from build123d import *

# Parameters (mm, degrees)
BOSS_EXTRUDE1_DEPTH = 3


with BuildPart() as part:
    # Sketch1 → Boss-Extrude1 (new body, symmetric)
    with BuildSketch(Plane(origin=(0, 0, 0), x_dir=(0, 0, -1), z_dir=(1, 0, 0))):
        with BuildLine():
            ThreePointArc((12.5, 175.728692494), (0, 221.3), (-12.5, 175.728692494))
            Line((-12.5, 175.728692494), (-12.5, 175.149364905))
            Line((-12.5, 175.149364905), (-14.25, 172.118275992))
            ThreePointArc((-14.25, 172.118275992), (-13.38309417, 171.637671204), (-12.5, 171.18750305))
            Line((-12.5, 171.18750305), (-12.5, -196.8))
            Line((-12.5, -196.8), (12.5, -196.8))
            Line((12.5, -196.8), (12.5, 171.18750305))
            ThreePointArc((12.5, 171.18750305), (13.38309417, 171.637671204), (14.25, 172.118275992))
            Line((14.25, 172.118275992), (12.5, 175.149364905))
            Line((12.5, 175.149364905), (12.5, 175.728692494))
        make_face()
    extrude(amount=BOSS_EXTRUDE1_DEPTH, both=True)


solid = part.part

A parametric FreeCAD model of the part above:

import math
import FreeCAD as App
import Part
import Sketcher
from FreeCAD import Vector
Q = App.Units.Quantity

doc = App.newDocument("Part")
params = doc.addObject("Spreadsheet::Sheet", "Params")
for row, (alias, value) in enumerate([
    ("sketch1_radius", "24.5 mm"),
    ("sketch1_radius2", "28.5 mm"),
    ("sketch1_height", "25 mm"),
    ("sketch1_length", "3.5 mm"),
    ("pad1_length", "6 mm"),
], start=1):
    params.set(f"A{row}", alias)
    params.set(f"B{row}", "=" + value)
    params.setAlias(f"B{row}", alias)

body = doc.addObject("PartDesign::Body", "Body")

sketch1 = doc.addObject("Sketcher::SketchObject", "Sketch")
body.addObject(sketch1)
sketch1.AttachmentSupport = (doc.YZ_Plane, [""])
sketch1.MapMode = "FlatFace"
sketch1.addGeometry([
    Part.ArcOfCircle(Part.Circle(Vector(196.8, 0, 0), Vector(0, 0, 1), 24.5), math.radians(-149), math.radians(149)),
    Part.LineSegment(Vector(175.7, 12.5, 0), Vector(175.1, 12.5, 0)),
    Part.LineSegment(Vector(175.1, 12.5, 0), Vector(172.1, 14.2, 0)),
    Part.ArcOfCircle(Part.Circle(Vector(196.8, 0, 0), Vector(0, 0, 1), 28.5), math.radians(150), math.radians(153.99)),
    Part.LineSegment(Vector(171.2, 12.5, 0), Vector(-196.8, 12.5, 0)),
    Part.LineSegment(Vector(-196.8, 12.5, 0), Vector(-196.8, -12.5, 0)),
    Part.LineSegment(Vector(-196.8, -12.5, 0), Vector(171.2, -12.5, 0)),
    Part.ArcOfCircle(Part.Circle(Vector(196.8, 0, 0), Vector(0, 0, 1), 28.5), math.radians(-153.99), math.radians(-150)),
    Part.LineSegment(Vector(172.1, -14.2, 0), Vector(175.1, -12.5, 0)),
    Part.LineSegment(Vector(175.1, -12.5, 0), Vector(175.7, -12.5, 0)),
], False)
sketch1.addConstraint([
    Sketcher.Constraint("Coincident", 0, 2, 1, 1),
    Sketcher.Constraint("Coincident", 1, 2, 2, 1),
    Sketcher.Constraint("Coincident", 2, 2, 3, 1),
    Sketcher.Constraint("Coincident", 3, 2, 4, 1),
    Sketcher.Constraint("Coincident", 4, 2, 5, 1),
    Sketcher.Constraint("Coincident", 5, 2, 6, 1),
    Sketcher.Constraint("Coincident", 6, 2, 7, 1),
    Sketcher.Constraint("Coincident", 7, 2, 8, 1),
    Sketcher.Constraint("Coincident", 8, 2, 9, 1),
    Sketcher.Constraint("Coincident", 9, 2, 0, 1),
    Sketcher.Constraint("Horizontal", 1),
    Sketcher.Constraint("Horizontal", 4),
    Sketcher.Constraint("Vertical", 5),
    Sketcher.Constraint("Horizontal", 6),
    Sketcher.Constraint("Horizontal", 9),
    Sketcher.Constraint("Coincident", 3, 3, 0, 3),
    Sketcher.Constraint("Coincident", 7, 3, 0, 3),
    Sketcher.Constraint("Equal", 3, 7),
    Sketcher.Constraint("Symmetric", 3, 2, 6, 2, -1),
    Sketcher.Constraint("Symmetric", 1, 2, 8, 2, -1),
    Sketcher.Constraint("Horizontal", 1, 2, 3, 2),
    Sketcher.Constraint("Vertical", 2, 2, 7, 2),
    Sketcher.Constraint("Radius", 0, Q("24.5 mm")),
    Sketcher.Constraint("Radius", 3, Q("28.5 mm")),
    Sketcher.Constraint("DistanceY", 5, 2, 5, 1, Q("25 mm")),
    Sketcher.Constraint("Angle", 2, Q("150 deg")),
    Sketcher.Constraint("Distance", 2, Q("3.5 mm")),
    Sketcher.Constraint("DistanceX", -1, 1, 0, 3, Q("196.8 mm")),
    Sketcher.Constraint("DistanceX", 4, 2, -1, 1, Q("196.8 mm")),
])
sketch1.setExpression("Constraints[22]", "Params.sketch1_radius")
sketch1.setExpression("Constraints[23]", "Params.sketch1_radius2")
sketch1.setExpression("Constraints[24]", "Params.sketch1_height")
sketch1.setExpression("Constraints[26]", "Params.sketch1_length")
pad1 = doc.addObject("PartDesign::Pad", "Pad")
body.addObject(pad1)
pad1.Profile = sketch1
pad1.setExpression("Length", "Params.pad1_length")
pad1.Midplane = True

doc.recompute()
